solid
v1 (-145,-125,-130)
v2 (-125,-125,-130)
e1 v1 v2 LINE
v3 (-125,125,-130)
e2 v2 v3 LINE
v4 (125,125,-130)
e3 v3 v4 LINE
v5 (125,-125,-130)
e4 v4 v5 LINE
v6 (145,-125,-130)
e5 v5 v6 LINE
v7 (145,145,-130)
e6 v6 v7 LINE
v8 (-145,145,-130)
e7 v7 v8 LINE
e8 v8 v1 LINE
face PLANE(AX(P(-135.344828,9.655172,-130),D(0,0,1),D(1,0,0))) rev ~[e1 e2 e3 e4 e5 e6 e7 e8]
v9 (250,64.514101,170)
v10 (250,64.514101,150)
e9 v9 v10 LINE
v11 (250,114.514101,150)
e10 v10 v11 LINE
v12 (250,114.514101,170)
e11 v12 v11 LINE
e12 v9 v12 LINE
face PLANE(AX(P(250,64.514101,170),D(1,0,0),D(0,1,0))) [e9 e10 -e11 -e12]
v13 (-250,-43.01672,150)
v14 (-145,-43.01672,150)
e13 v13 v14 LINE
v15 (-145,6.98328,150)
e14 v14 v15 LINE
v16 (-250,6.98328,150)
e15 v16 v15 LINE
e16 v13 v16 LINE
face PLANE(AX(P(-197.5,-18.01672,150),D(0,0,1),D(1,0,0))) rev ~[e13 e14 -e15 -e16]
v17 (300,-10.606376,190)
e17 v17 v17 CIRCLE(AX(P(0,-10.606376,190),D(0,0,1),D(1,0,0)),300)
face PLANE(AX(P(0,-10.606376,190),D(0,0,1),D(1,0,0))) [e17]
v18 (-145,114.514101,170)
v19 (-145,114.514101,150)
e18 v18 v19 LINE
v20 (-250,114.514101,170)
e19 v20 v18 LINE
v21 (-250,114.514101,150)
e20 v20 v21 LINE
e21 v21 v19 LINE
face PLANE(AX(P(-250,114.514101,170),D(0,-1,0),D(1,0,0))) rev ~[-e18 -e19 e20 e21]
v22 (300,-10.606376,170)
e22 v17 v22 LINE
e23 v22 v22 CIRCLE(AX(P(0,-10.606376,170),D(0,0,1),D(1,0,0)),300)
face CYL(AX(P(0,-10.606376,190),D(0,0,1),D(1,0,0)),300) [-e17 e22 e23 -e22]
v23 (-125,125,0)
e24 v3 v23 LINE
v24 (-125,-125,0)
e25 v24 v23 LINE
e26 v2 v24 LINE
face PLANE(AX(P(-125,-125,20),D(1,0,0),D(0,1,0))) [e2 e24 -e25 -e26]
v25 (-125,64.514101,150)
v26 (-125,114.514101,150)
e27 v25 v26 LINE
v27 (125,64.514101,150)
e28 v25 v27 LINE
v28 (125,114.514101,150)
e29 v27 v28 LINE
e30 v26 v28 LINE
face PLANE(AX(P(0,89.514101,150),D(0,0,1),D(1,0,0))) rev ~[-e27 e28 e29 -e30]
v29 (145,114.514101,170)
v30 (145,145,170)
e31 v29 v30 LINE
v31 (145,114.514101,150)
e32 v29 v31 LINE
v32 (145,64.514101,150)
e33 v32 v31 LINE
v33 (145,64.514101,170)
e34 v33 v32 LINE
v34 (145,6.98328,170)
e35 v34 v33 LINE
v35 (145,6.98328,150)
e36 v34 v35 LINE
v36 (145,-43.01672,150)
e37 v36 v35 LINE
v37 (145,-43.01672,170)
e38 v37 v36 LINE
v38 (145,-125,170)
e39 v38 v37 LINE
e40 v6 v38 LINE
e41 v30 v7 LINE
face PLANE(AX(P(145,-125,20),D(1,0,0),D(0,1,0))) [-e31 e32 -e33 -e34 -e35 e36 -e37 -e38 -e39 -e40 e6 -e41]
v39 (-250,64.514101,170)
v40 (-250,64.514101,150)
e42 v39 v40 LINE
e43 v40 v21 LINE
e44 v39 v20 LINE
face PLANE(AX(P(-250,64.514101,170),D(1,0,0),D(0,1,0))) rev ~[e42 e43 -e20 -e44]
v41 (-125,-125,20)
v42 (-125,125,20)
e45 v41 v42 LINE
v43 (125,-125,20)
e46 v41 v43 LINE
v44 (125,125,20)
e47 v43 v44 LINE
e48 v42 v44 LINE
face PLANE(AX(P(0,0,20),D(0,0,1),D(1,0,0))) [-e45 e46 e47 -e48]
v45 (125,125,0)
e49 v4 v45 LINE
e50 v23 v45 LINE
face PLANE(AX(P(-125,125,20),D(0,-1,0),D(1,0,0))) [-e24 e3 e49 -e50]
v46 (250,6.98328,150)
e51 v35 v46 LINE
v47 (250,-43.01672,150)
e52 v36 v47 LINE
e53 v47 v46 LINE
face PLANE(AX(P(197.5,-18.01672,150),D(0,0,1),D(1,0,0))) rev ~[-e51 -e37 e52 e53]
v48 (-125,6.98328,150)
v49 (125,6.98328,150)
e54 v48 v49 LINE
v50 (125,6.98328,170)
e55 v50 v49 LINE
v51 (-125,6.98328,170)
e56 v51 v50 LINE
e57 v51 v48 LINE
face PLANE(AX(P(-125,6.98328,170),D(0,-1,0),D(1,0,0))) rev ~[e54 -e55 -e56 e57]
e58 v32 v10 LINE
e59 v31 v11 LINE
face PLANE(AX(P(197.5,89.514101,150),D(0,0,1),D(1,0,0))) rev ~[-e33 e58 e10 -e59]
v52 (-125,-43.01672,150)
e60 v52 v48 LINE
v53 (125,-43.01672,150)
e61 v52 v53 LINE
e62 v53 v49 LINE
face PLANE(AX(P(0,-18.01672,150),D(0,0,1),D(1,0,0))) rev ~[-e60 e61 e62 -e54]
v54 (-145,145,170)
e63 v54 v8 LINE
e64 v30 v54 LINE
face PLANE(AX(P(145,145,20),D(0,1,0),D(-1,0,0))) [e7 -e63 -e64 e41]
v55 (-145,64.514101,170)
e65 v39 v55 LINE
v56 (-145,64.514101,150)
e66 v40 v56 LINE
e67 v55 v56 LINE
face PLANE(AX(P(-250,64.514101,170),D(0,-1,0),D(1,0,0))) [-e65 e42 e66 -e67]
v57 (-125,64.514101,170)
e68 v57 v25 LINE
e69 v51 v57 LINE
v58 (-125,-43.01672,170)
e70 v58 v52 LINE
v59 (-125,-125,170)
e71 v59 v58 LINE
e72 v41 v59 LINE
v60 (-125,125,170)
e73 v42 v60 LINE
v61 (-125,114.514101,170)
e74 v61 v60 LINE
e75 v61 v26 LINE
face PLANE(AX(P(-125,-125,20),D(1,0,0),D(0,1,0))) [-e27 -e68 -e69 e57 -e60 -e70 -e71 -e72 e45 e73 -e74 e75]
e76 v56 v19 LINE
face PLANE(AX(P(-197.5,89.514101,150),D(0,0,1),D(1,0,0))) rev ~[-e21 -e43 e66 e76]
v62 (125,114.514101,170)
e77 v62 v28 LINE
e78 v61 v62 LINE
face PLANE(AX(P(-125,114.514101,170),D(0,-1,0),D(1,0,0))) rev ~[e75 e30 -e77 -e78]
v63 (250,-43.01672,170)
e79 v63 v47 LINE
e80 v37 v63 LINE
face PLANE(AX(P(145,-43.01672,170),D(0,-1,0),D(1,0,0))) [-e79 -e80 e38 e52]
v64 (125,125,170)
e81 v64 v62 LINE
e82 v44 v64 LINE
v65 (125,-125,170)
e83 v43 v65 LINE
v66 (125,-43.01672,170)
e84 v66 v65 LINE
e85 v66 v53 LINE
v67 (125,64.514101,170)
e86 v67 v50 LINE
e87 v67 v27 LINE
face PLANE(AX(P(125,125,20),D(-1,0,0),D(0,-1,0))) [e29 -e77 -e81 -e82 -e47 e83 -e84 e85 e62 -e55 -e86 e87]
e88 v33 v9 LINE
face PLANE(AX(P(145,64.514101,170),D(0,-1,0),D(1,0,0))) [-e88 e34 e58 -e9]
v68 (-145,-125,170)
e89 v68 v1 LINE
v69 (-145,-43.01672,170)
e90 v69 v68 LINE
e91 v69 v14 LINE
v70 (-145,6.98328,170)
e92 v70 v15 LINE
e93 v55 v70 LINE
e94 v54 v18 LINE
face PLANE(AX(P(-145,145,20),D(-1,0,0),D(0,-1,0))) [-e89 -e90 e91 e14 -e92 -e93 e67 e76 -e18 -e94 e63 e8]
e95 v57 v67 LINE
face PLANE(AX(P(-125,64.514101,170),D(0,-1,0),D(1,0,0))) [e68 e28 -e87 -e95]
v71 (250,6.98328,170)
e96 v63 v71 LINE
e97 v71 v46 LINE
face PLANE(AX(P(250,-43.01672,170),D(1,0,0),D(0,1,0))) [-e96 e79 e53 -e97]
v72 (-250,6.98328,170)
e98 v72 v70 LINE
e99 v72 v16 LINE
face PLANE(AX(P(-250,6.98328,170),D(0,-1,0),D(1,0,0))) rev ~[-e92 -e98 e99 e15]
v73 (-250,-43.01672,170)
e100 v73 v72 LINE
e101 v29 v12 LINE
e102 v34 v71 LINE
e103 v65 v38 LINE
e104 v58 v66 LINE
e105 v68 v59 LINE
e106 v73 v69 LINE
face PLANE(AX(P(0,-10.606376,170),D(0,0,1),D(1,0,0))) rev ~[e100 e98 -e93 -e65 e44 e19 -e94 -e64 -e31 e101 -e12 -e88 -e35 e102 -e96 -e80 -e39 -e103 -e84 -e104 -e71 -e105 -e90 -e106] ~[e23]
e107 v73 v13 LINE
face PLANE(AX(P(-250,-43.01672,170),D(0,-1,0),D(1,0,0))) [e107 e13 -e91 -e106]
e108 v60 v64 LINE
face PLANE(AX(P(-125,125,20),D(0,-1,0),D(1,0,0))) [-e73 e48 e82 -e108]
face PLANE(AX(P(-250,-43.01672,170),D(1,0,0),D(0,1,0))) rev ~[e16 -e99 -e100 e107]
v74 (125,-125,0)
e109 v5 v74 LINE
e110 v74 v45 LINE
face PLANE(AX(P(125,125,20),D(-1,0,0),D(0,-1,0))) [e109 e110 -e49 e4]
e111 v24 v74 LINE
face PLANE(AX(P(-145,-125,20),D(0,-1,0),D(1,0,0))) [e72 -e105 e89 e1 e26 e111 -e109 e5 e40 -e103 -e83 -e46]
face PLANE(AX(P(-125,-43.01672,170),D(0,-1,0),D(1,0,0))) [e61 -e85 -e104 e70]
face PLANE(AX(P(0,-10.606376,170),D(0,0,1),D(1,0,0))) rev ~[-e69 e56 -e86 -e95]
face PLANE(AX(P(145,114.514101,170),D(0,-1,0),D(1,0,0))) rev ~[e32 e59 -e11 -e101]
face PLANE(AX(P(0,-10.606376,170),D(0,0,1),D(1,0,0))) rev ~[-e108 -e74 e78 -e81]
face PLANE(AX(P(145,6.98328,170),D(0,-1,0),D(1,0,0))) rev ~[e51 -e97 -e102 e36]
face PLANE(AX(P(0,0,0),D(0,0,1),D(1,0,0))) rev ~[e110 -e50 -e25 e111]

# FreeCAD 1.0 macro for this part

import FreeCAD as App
import Part
import Sketcher

V = App.Vector
Q = App.Units.Quantity


def add_polygon(sketch, points):
    """Adds a closed chain of lines whose ends are joined by coincident constraints."""
    first, n = sketch.GeometryCount, len(points)
    for a, b in zip(points, points[1:] + points[:1]):
        sketch.addGeometry(Part.LineSegment(App.Vector(*a, 0), App.Vector(*b, 0)), False)
    for i in range(n):
        sketch.addConstraint(Sketcher.Constraint("Coincident", first + i, 2, first + (i + 1) % n, 1))

doc = App.newDocument("Part")
body = doc.addObject("PartDesign::Body", "Body")

sketch1 = body.newObject("Sketcher::SketchObject", "Sketch")
sketch1.AttachmentSupport = (doc.getObject("XY_Plane"), [""])
sketch1.MapMode = "FlatFace"
add_polygon(sketch1, [(-125, 125), (-125, -125), (125, -125), (125, 125)])
sketch1.addConstraint([
    Sketcher.Constraint("Vertical", 0),
    Sketcher.Constraint("Horizontal", 1),
    Sketcher.Constraint("Vertical", 2),
    Sketcher.Constraint("Horizontal", 3),
    Sketcher.Constraint("Symmetric", 0, 2, 2, 2, -1, 1),
    Sketcher.Constraint("Equal", 3, 0),
    Sketcher.Constraint("DistanceX", 1, 1, 1, 2, Q("250 mm")),
])
pad1 = body.newObject("PartDesign::Pad", "Pad")
pad1.Profile = sketch1
pad1.Length = 20

sketch2 = body.newObject("Sketcher::SketchObject", "Sketch001")
sketch2.AttachmentSupport = (doc.getObject("XY_Plane"), [""])
sketch2.MapMode = "FlatFace"
sketch2.AttachmentOffset = App.Placement(V(0, 0, 20), App.Rotation())
add_polygon(sketch2, [(-145, -125), (-125, -125), (-125, 125), (125, 125), (125, -125), (145, -125), (145, 145), (-145, 145)])
sketch2.addConstraint([
    Sketcher.Constraint("Horizontal", 0),
    Sketcher.Constraint("Vertical", 1),
    Sketcher.Constraint("Horizontal", 2),
    Sketcher.Constraint("Vertical", 3),
    Sketcher.Constraint("Horizontal", 4),
    Sketcher.Constraint("Vertical", 5),
    Sketcher.Constraint("Horizontal", 6),
    Sketcher.Constraint("Vertical", 7),
    Sketcher.Constraint("Symmetric", 0, 2, 2, 2, -1, 1),
    Sketcher.Constraint("Symmetric", 4, 2, 7, 2, -2),
    Sketcher.Constraint("Equal", 2, 1),
    Sketcher.Constraint("DistanceX", 0, 1, 0, 2, Q("20 mm")),
    Sketcher.Constraint("DistanceX", 2, 1, 2, 2, Q("250 mm")),
    Sketcher.Constraint("DistanceY", 5, 1, 5, 2, Q("270 mm")),
])
pad2 = body.newObject("PartDesign::Pad", "Pad001")
pad2.Profile = sketch2
pad2.Length = 300
pad2.Midplane = True

sketch3 = body.newObject("Sketcher::SketchObject", "Sketch002")
sketch3.AttachmentSupport = (doc.getObject("XY_Plane"), [""])
sketch3.MapMode = "FlatFace"
sketch3.AttachmentOffset = App.Placement(V(0, 0, 170), App.Rotation())
add_polygon(sketch3, [(-250, 114.514101), (-250, 64.514101), (-145, 64.514101), (-145, 114.514101)])
add_polygon(sketch3, [(-250, 6.98328), (-250, -43.01672), (-145, -43.01672), (-145, 6.98328)])
add_polygon(sketch3, [(-125, 6.98328), (-125, -43.01672), (125, -43.01672), (125, 6.98328)])
add_polygon(sketch3, [(-125, 114.514101), (-125, 64.514101), (125, 64.514101), (125, 114.514101)])
add_polygon(sketch3, [(145, 114.514101), (145, 64.514101), (250, 64.514101), (250, 114.514101)])
add_polygon(sketch3, [(145, 6.98328), (145, -43.01672), (250, -43.01672), (250, 6.98328)])
sketch3.addConstraint([
    Sketcher.Constraint("Vertical", 0),
    Sketcher.Constraint("Horizontal", 1),
    Sketcher.Constraint("Vertical", 2),
    Sketcher.Constraint("Horizontal", 3),
    Sketcher.Constraint("Vertical", 4),
    Sketcher.Constraint("Horizontal", 5),
    Sketcher.Constraint("Vertical", 6),
    Sketcher.Constraint("Horizontal", 7),
    Sketcher.Constraint("Vertical", 8),
    Sketcher.Constraint("Horizontal", 9),
    Sketcher.Constraint("Vertical", 10),
    Sketcher.Constraint("Horizontal", 11),
    Sketcher.Constraint("Vertical", 12),
    Sketcher.Constraint("Horizontal", 13),
    Sketcher.Constraint("Vertical", 14),
    Sketcher.Constraint("Horizontal", 15),
    Sketcher.Constraint("Vertical", 16),
    Sketcher.Constraint("Horizontal", 17),
    Sketcher.Constraint("Vertical", 18),
    Sketcher.Constraint("Horizontal", 19),
    Sketcher.Constraint("Vertical", 20),
    Sketcher.Constraint("Horizontal", 21),
    Sketcher.Constraint("Vertical", 22),
    Sketcher.Constraint("Horizontal", 23),
    Sketcher.Constraint("Symmetric", 1, 2, 16, 2, -2),
    Sketcher.Constraint("Symmetric", 3, 2, 18, 2, -2),
    Sketcher.Constraint("Symmetric", 5, 2, 20, 2, -2),
    Sketcher.Constraint("Symmetric", 7, 2, 22, 2, -2),
    Sketcher.Constraint("Horizontal", 5, 2, 8, 2),
    Sketcher.Constraint("Horizontal", 7, 2, 10, 2),
    Sketcher.Constraint("Horizontal", 1, 2, 12, 2),
    Sketcher.Constraint("Horizontal", 3, 2, 14, 2),
    Sketcher.Constraint("Vertical", 3, 2, 4, 2),
    Sketcher.Constraint("Vertical", 2, 2, 5, 2),
    Sketcher.Constraint("Vertical", 11, 2, 12, 2),
    Sketcher.Constraint("Vertical", 10, 2, 13, 2),
    Sketcher.Constraint("Equal", 2, 4),
    Sketcher.Constraint("DistanceX", 1, 1, 1, 2, Q("105 mm")),
    Sketcher.Constraint("DistanceX", 9, 1, 9, 2, Q("250 mm")),
    Sketcher.Constraint("DistanceY", 0, 2, 0, 1, Q("50 mm")),
    Sketcher.Constraint("DistanceX", 0, 2, -1, 1, Q("250 mm")),
    Sketcher.Constraint("DistanceX", 8, 2, -1, 1, Q("125 mm")),
    Sketcher.Constraint("DistanceY", -1, 1, 0, 2, Q("64.514101 mm")),
    Sketcher.Constraint("DistanceY", 4, 2, -1, 1, Q("43.01672 mm")),
])
pad3 = body.newObject("PartDesign::Pad", "Pad002")
pad3.Profile = sketch3
pad3.Length = 20
pad3.Reversed = True

sketch4 = body.newObject("Sketcher::SketchObject", "Sketch003")
sketch4.AttachmentSupport = (doc.getObject("XY_Plane"), [""])
sketch4.MapMode = "FlatFace"
sketch4.AttachmentOffset = App.Placement(V(0, 0, 190), App.Rotation())
sketch4.addGeometry(Part.Circle(V(0, -10.606376, 0), V(0, 0, 1), 300), False)
sketch4.addConstraint([
    Sketcher.Constraint("PointOnObject", 0, 3, -2),
    Sketcher.Constraint("Diameter", 0, Q("600 mm")),
    Sketcher.Constraint("DistanceY", 0, 3, -1, 1, Q("10.606376 mm")),
])
pad4 = body.newObject("PartDesign::Pad", "Pad003")
pad4.Profile = sketch4
pad4.Length = 20
pad4.Reversed = True

doc.recompute()
